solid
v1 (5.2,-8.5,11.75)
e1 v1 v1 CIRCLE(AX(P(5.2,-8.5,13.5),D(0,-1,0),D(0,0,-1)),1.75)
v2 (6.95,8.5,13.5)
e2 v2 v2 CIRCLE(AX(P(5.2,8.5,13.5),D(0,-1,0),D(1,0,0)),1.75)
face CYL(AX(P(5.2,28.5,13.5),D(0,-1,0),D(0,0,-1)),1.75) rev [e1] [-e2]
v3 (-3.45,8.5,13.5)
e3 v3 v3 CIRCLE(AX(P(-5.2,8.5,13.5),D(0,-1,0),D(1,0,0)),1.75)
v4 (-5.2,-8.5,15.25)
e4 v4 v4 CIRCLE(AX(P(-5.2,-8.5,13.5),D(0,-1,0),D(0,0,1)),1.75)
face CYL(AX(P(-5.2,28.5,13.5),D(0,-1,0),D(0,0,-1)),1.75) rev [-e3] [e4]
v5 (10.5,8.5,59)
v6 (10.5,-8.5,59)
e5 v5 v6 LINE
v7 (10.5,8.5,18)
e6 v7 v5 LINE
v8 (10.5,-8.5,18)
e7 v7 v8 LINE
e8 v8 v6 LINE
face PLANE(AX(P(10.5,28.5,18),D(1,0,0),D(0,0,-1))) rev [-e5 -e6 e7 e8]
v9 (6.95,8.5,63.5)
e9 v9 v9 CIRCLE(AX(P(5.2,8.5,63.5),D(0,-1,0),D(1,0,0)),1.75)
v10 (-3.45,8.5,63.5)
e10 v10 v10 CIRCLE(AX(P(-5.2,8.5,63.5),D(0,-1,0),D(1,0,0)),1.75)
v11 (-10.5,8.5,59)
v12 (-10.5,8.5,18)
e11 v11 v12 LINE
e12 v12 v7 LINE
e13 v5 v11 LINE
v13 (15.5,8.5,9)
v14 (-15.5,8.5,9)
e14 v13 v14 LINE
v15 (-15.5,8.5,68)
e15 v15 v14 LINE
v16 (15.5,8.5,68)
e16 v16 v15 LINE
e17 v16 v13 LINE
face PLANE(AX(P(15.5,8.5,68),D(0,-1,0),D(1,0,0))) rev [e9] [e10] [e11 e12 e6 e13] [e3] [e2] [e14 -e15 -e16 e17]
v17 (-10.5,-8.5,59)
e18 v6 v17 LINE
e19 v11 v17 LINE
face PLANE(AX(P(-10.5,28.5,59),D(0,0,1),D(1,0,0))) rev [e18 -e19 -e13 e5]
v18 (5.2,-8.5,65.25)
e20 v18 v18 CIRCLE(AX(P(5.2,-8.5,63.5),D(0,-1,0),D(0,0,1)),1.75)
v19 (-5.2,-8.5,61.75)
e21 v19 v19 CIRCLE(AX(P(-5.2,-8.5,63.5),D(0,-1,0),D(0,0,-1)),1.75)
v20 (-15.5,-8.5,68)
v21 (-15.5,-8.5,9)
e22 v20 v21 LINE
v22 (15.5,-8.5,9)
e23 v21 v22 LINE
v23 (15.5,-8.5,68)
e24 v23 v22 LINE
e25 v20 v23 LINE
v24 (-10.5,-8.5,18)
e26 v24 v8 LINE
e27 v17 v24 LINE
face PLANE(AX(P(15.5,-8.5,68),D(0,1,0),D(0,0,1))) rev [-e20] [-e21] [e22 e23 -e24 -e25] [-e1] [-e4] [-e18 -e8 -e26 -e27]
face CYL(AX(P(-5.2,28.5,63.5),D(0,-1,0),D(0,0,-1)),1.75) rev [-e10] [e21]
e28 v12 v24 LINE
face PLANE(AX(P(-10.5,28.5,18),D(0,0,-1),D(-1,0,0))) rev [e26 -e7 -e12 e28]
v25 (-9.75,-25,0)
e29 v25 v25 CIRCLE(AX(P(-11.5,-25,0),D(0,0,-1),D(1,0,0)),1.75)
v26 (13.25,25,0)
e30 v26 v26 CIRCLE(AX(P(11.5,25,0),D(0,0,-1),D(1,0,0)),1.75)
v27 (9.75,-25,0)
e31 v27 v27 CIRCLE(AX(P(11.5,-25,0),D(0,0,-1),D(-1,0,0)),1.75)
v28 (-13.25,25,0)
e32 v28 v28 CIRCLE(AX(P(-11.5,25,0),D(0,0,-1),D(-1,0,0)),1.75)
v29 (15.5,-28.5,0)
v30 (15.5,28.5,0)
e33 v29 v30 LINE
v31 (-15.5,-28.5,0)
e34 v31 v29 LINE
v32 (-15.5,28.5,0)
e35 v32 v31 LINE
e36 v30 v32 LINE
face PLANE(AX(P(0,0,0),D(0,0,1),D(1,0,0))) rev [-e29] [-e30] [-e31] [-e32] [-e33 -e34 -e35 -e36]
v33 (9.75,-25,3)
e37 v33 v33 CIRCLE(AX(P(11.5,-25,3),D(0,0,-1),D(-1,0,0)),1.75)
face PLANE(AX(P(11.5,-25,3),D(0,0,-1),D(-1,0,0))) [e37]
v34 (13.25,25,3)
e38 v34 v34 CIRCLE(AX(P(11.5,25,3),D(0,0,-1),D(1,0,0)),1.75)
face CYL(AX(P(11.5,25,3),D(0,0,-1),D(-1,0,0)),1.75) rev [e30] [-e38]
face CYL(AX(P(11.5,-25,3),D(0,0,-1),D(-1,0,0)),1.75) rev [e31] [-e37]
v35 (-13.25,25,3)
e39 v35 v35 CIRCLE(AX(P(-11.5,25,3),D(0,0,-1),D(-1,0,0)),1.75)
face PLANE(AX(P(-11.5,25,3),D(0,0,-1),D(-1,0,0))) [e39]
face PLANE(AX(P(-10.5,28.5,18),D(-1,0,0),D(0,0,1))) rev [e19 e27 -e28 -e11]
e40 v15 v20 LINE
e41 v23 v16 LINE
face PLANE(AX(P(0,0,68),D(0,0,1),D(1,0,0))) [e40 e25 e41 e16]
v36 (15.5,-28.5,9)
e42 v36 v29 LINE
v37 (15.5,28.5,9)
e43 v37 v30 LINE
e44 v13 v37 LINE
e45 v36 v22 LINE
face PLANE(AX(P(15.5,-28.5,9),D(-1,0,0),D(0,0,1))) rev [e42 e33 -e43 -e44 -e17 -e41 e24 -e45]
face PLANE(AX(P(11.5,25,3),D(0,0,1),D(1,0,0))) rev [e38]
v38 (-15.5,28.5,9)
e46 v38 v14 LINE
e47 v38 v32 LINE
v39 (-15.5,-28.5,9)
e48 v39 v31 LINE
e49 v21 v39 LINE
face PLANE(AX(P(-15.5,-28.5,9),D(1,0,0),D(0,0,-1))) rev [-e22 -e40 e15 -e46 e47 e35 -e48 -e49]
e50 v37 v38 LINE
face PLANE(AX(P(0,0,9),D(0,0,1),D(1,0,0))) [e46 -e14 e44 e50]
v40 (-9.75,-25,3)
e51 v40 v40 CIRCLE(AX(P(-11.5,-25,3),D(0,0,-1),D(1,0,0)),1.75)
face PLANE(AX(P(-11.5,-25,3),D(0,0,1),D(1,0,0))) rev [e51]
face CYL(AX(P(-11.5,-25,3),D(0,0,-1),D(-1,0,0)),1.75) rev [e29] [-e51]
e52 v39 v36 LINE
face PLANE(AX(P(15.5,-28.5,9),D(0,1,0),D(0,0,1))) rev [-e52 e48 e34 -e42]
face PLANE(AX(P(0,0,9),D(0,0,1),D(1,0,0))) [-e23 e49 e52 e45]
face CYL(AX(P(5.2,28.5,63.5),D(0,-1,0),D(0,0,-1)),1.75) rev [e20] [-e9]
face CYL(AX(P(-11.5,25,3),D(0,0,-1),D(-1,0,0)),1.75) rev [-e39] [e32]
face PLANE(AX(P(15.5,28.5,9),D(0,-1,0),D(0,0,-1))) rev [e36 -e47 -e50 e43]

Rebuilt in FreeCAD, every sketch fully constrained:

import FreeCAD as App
import Part
import Sketcher
Q = App.Units.Quantity


def add_polygon(sketch, points):
    """Adds a closed chain of lines whose ends are joined by coincident constraints."""
    first, n = sketch.GeometryCount, len(points)
    for a, b in zip(points, points[1:] + points[:1]):
        sketch.addGeometry(Part.LineSegment(App.Vector(*a, 0), App.Vector(*b, 0)), False)
    for i in range(n):
        sketch.addConstraint(Sketcher.Constraint("Coincident", first + i, 2, first + (i + 1) % n, 1))

doc = App.newDocument("Part")
body = doc.addObject("PartDesign::Body", "Body")

# Sketch on XY plane
sketch1 = body.newObject("Sketcher::SketchObject", "Sketch")
sketch1.AttachmentSupport = (doc.getObject("XY_Plane"), [""])
sketch1.MapMode = "FlatFace"
add_polygon(sketch1, [(-15.5, -28.5), (15.5, -28.5), (15.5, 28.5), (-15.5, 28.5)])  # lines 0-3
sketch1.addConstraint([
    Sketcher.Constraint("Horizontal", 0),
    Sketcher.Constraint("Vertical", 1),
    Sketcher.Constraint("Horizontal", 2),
    Sketcher.Constraint("Vertical", 3),
    Sketcher.Constraint("Symmetric", 0, 2, 2, 2, -1, 1),
    Sketcher.Constraint("DistanceX", 0, 1, 0, 2, Q("31 mm")),
    Sketcher.Constraint("DistanceY", 1, 1, 1, 2, Q("57 mm")),
])
pad1 = body.newObject("PartDesign::Pad", "Pad")
pad1.Profile = sketch1
pad1.Length = 9

# Sketch on XY plane
sketch2 = body.newObject("Sketcher::SketchObject", "Sketch001")
sketch2.AttachmentSupport = (doc.getObject("XY_Plane"), [""])
sketch2.MapMode = "FlatFace"
sketch2.AttachmentOffset = App.Placement(App.Vector(0, 0, 9), App.Rotation())
add_polygon(sketch2, [(-15.5, 8.5), (-15.5, -8.5), (15.5, -8.5), (15.5, 8.5)])  # lines 0-3
sketch2.addConstraint([
    Sketcher.Constraint("Vertical", 0),
    Sketcher.Constraint("Horizontal", 1),
    Sketcher.Constraint("Vertical", 2),
    Sketcher.Constraint("Horizontal", 3),
    Sketcher.Constraint("Symmetric", 0, 2, 2, 2, -1, 1),
    Sketcher.Constraint("DistanceX", 1, 1, 1, 2, Q("31 mm")),
    Sketcher.Constraint("DistanceY", 0, 2, 0, 1, Q("17 mm")),
])
pad2 = body.newObject("PartDesign::Pad", "Pad001")
pad2.Profile = sketch2
pad2.Length = 59

# Sketch on XZ plane
sketch3 = body.newObject("Sketcher::SketchObject", "Sketch002")
sketch3.AttachmentSupport = (doc.getObject("XZ_Plane"), [""])
sketch3.MapMode = "FlatFace"
sketch3.AttachmentOffset = App.Placement(App.Vector(0, 0, 8.5), App.Rotation())
sketch3.addGeometry(Part.Circle(App.Vector(5.2, 13.5, 0), App.Vector(0, 0, 1), 1.75), False)  # 0
sketch3.addGeometry(Part.Circle(App.Vector(-5.2, 13.5, 0), App.Vector(0, 0, 1), 1.75), False)  # 1
sketch3.addGeometry(Part.Circle(App.Vector(5.2, 63.5, 0), App.Vector(0, 0, 1), 1.75), False)  # 2
sketch3.addGeometry(Part.Circle(App.Vector(-5.2, 63.5, 0), App.Vector(0, 0, 1), 1.75), False)  # 3
add_polygon(sketch3, [(-10.5, 59), (-10.5, 18), (10.5, 18), (10.5, 59)])  # lines 4-7
sketch3.addConstraint([
    Sketcher.Constraint("Vertical", 4),
    Sketcher.Constraint("Horizontal", 5),
    Sketcher.Constraint("Vertical", 6),
    Sketcher.Constraint("Horizontal", 7),
    Sketcher.Constraint("Equal", 0, 1),
    Sketcher.Constraint("Equal", 1, 2),
    Sketcher.Constraint("Equal", 2, 3),
    Sketcher.Constraint("Symmetric", 0, 3, 1, 3, -2),
    Sketcher.Constraint("Symmetric", 2, 3, 3, 3, -2),
    Sketcher.Constraint("Vertical", 0, 3, 2, 3),
    Sketcher.Constraint("Diameter", 0, Q("3.5 mm")),
    Sketcher.Constraint("DistanceX", 5, 1, 5, 2, Q("21 mm")),
    Sketcher.Constraint("DistanceY", 4, 2, 4, 1, Q("41 mm")),
    Sketcher.Constraint("DistanceY", -1, 1, 4, 2, Q("18 mm")),
    Sketcher.Constraint("DistanceY", 0, 3, 2, 3, Q("50 mm")),
    Sketcher.Constraint("DistanceX", -1, 1, 0, 3, Q("5.2 mm")),
    Sketcher.Constraint("DistanceY", -1, 1, 0, 3, Q("13.5 mm")),
    Sketcher.Constraint("DistanceX", 4, 2, -1, 1, Q("10.5 mm")),
])
pocket1 = body.newObject("PartDesign::Pocket", "Pocket")
pocket1.Profile = sketch3
pocket1.Type = "ThroughAll"

# Sketch on XY plane
sketch4 = body.newObject("Sketcher::SketchObject", "Sketch003")
sketch4.AttachmentSupport = (doc.getObject("XY_Plane"), [""])
sketch4.MapMode = "FlatFace"
sketch4.addGeometry([
    Part.Circle(App.Vector(-11.5, 25, 0), App.Vector(0, 0, 1), 1.75),
    Part.Circle(App.Vector(11.5, 25, 0), App.Vector(0, 0, 1), 1.75),
    Part.Circle(App.Vector(-11.5, -25, 0), App.Vector(0, 0, 1), 1.75),
    Part.Circle(App.Vector(11.5, -25, 0), App.Vector(0, 0, 1), 1.75),
], False)
sketch4.addConstraint([
    Sketcher.Constraint("Equal", 0, 1),
    Sketcher.Constraint("Equal", 1, 2),
    Sketcher.Constraint("Equal", 2, 3),
    Sketcher.Constraint("Symmetric", 1, 3, 2, 3, -1, 1),
    Sketcher.Constraint("Symmetric", 0, 3, 3, 3, -1, 1),
    Sketcher.Constraint("Symmetric", 0, 3, 1, 3, -2),
    Sketcher.Constraint("Diameter", 0, Q("3.5 mm")),
    Sketcher.Constraint("DistanceY", -1, 1, 0, 3, Q("25 mm")),
    Sketcher.Constraint("DistanceX", 0, 3, 1, 3, Q("23 mm")),
])
pocket2 = body.newObject("PartDesign::Pocket", "Pocket001")
pocket2.Profile = sketch4
pocket2.Length = 3
pocket2.Reversed = True

doc.recompute()
